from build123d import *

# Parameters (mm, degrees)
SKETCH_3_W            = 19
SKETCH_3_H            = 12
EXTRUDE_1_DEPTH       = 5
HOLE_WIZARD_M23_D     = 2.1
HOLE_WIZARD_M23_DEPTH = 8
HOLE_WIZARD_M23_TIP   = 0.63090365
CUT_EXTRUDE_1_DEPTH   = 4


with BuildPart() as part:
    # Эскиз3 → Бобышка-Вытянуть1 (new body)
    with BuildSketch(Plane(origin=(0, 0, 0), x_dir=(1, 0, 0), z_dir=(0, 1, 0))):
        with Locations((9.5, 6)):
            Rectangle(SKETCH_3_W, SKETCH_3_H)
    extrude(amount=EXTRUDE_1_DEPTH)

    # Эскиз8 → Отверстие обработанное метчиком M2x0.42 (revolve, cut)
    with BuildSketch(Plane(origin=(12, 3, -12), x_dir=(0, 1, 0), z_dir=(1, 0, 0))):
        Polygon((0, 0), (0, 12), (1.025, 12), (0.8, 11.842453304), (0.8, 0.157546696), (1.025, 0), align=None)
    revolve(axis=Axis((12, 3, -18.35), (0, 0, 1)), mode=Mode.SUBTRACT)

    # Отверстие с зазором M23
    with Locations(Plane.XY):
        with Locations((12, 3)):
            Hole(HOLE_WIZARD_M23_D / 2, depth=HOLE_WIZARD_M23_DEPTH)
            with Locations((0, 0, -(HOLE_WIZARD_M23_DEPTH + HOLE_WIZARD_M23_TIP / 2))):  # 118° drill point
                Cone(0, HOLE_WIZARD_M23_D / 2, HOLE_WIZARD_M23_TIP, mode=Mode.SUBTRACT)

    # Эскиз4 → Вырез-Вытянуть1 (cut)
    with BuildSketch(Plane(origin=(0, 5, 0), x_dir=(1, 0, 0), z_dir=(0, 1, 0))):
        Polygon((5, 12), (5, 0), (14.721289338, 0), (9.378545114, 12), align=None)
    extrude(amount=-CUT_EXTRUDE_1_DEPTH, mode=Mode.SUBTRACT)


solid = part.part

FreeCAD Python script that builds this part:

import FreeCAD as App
import Part
import Sketcher
Q = App.Units.Quantity


def add_polygon(sketch, points):
    """Adds a closed chain of lines whose ends are joined by coincident constraints."""
    first, n = sketch.GeometryCount, len(points)
    for a, b in zip(points, points[1:] + points[:1]):
        sketch.addGeometry(Part.LineSegment(App.Vector(*a, 0), App.Vector(*b, 0)), False)
    for i in range(n):
        sketch.addConstraint(Sketcher.Constraint("Coincident", first + i, 2, first + (i + 1) % n, 1))

doc = App.newDocument("Part")
body = doc.addObject("PartDesign::Body", "Body")

sketch1 = doc.addObject("Sketcher::SketchObject", "Sketch")
body.addObject(sketch1)
sketch1.AttachmentSupport = (doc.XZ_Plane, [""])
sketch1.MapMode = "FlatFace"
add_polygon(sketch1, [(0, -12), (0, 0), (19, 0), (19, -12)])
sketch1.addConstraint([
    Sketcher.Constraint("Vertical", 0),
    Sketcher.Constraint("Horizontal", 1),
    Sketcher.Constraint("Vertical", 2),
    Sketcher.Constraint("Horizontal", 3),
    Sketcher.Constraint("Coincident", 0, 2, -1, 1),
    Sketcher.Constraint("DistanceX", 1, 1, 1, 2, Q("19 mm")),
    Sketcher.Constraint("DistanceY", 0, 1, 0, 2, Q("12 mm")),
])
pad1 = doc.addObject("PartDesign::Pad", "Pad")
body.addObject(pad1)
pad1.Profile = sketch1
pad1.Length = 5
pad1.Reversed = True

sketch2 = doc.addObject("Sketcher::SketchObject", "Sketch001")
body.addObject(sketch2)
sketch2.AttachmentSupport = (doc.YZ_Plane, [""])
sketch2.MapMode = "FlatFace"
sketch2.AttachmentOffset = App.Placement(App.Vector(0, 0, 12), App.Rotation())
add_polygon(sketch2, [(3, 0), (3, -12), (4.03, -12), (3.8, -11.84), (3.8, -0.16), (4.03, 0)])
sketch2.addGeometry(Part.LineSegment(App.Vector(3, -12, 0), App.Vector(3, 0, 0)), True)
sketch2.addConstraint([
    Sketcher.Constraint("Vertical", 0),
    Sketcher.Constraint("Horizontal", 1),
    Sketcher.Constraint("Vertical", 3),
    Sketcher.Constraint("Horizontal", 5),
    Sketcher.Constraint("Vertical", 6),
    Sketcher.Constraint("Coincident", 6, 1, 0, 2),
    Sketcher.Constraint("PointOnObject", 4, 2, -1),
    Sketcher.Constraint("PointOnObject", 6, 2, -1),
    Sketcher.Constraint("Vertical", 1, 2, 4, 2),
    Sketcher.Constraint("Equal", 2, 4),
    Sketcher.Constraint("DistanceY", 0, 2, 0, 1, Q("12 mm")),
    Sketcher.Constraint("Angle", 2, Q("145 deg")),
    Sketcher.Constraint("DistanceX", -1, 1, 0, 2, Q("3 mm")),
    Sketcher.Constraint("DistanceX", -1, 1, 2, 2, Q("3.8 mm")),
    Sketcher.Constraint("DistanceX", 1, 1, 1, 2, Q("1.025 mm")),
])
groove = doc.addObject("PartDesign::Groove", "Groove")
body.addObject(groove)
groove.Profile = sketch2
groove.ReferenceAxis = (sketch2, ["Axis0"])
groove.Angle = 360

sketch3 = doc.addObject("Sketcher::SketchObject", "Sketch002")
body.addObject(sketch3)
sketch3.AttachmentSupport = (doc.XY_Plane, [""])
sketch3.MapMode = "FlatFace"
sketch3.addGeometry(Part.Circle(App.Vector(12, 3, 0), App.Vector(0, 0, 1), 1.1), False)
sketch3.addConstraint([
    Sketcher.Constraint("Diameter", 0, Q("2.1 mm")),
    Sketcher.Constraint("DistanceX", -1, 1, 0, 3, Q("12 mm")),
    Sketcher.Constraint("DistanceY", -1, 1, 0, 3, Q("3 mm")),
])
doc.recompute()
hole = doc.addObject("PartDesign::Hole", "Hole")
body.addObject(hole)
hole.Profile = sketch3
hole.ThreadType = "None"
hole.Diameter = 2.1
hole.DepthType = "Dimension"
hole.Depth = 8
hole.DrillPoint = "Angled"
hole.DrillPointAngle = 118

sketch4 = doc.addObject("Sketcher::SketchObject", "Sketch003")
body.addObject(sketch4)
sketch4.AttachmentSupport = (doc.XZ_Plane, [""])
sketch4.MapMode = "FlatFace"
sketch4.AttachmentOffset = App.Placement(App.Vector(0, 0, -5), App.Rotation())
add_polygon(sketch4, [(5, -12), (5, 0), (14.7, 0), (9.4, -12)])
sketch4.addConstraint([
    Sketcher.Constraint("Vertical", 0),
    Sketcher.Constraint("Horizontal", 1),
    Sketcher.Constraint("Horizontal", 3),
    Sketcher.Constraint("PointOnObject", 0, 2, -1),
    Sketcher.Constraint("DistanceY", 0, 1, 0, 2, Q("12 mm")),
    Sketcher.Constraint("Angle", 2, Q("-114 deg")),
    Sketcher.Constraint("DistanceX", -1, 1, 0, 2, Q("5 mm")),
    Sketcher.Constraint("DistanceX", 1, 1, 1, 2, Q("9.721289 mm")),
])
pocket1 = doc.addObject("PartDesign::Pocket", "Pocket")
body.addObject(pocket1)
pocket1.Profile = sketch4
pocket1.Length = 4
pocket1.Reversed = True

doc.recompute()
